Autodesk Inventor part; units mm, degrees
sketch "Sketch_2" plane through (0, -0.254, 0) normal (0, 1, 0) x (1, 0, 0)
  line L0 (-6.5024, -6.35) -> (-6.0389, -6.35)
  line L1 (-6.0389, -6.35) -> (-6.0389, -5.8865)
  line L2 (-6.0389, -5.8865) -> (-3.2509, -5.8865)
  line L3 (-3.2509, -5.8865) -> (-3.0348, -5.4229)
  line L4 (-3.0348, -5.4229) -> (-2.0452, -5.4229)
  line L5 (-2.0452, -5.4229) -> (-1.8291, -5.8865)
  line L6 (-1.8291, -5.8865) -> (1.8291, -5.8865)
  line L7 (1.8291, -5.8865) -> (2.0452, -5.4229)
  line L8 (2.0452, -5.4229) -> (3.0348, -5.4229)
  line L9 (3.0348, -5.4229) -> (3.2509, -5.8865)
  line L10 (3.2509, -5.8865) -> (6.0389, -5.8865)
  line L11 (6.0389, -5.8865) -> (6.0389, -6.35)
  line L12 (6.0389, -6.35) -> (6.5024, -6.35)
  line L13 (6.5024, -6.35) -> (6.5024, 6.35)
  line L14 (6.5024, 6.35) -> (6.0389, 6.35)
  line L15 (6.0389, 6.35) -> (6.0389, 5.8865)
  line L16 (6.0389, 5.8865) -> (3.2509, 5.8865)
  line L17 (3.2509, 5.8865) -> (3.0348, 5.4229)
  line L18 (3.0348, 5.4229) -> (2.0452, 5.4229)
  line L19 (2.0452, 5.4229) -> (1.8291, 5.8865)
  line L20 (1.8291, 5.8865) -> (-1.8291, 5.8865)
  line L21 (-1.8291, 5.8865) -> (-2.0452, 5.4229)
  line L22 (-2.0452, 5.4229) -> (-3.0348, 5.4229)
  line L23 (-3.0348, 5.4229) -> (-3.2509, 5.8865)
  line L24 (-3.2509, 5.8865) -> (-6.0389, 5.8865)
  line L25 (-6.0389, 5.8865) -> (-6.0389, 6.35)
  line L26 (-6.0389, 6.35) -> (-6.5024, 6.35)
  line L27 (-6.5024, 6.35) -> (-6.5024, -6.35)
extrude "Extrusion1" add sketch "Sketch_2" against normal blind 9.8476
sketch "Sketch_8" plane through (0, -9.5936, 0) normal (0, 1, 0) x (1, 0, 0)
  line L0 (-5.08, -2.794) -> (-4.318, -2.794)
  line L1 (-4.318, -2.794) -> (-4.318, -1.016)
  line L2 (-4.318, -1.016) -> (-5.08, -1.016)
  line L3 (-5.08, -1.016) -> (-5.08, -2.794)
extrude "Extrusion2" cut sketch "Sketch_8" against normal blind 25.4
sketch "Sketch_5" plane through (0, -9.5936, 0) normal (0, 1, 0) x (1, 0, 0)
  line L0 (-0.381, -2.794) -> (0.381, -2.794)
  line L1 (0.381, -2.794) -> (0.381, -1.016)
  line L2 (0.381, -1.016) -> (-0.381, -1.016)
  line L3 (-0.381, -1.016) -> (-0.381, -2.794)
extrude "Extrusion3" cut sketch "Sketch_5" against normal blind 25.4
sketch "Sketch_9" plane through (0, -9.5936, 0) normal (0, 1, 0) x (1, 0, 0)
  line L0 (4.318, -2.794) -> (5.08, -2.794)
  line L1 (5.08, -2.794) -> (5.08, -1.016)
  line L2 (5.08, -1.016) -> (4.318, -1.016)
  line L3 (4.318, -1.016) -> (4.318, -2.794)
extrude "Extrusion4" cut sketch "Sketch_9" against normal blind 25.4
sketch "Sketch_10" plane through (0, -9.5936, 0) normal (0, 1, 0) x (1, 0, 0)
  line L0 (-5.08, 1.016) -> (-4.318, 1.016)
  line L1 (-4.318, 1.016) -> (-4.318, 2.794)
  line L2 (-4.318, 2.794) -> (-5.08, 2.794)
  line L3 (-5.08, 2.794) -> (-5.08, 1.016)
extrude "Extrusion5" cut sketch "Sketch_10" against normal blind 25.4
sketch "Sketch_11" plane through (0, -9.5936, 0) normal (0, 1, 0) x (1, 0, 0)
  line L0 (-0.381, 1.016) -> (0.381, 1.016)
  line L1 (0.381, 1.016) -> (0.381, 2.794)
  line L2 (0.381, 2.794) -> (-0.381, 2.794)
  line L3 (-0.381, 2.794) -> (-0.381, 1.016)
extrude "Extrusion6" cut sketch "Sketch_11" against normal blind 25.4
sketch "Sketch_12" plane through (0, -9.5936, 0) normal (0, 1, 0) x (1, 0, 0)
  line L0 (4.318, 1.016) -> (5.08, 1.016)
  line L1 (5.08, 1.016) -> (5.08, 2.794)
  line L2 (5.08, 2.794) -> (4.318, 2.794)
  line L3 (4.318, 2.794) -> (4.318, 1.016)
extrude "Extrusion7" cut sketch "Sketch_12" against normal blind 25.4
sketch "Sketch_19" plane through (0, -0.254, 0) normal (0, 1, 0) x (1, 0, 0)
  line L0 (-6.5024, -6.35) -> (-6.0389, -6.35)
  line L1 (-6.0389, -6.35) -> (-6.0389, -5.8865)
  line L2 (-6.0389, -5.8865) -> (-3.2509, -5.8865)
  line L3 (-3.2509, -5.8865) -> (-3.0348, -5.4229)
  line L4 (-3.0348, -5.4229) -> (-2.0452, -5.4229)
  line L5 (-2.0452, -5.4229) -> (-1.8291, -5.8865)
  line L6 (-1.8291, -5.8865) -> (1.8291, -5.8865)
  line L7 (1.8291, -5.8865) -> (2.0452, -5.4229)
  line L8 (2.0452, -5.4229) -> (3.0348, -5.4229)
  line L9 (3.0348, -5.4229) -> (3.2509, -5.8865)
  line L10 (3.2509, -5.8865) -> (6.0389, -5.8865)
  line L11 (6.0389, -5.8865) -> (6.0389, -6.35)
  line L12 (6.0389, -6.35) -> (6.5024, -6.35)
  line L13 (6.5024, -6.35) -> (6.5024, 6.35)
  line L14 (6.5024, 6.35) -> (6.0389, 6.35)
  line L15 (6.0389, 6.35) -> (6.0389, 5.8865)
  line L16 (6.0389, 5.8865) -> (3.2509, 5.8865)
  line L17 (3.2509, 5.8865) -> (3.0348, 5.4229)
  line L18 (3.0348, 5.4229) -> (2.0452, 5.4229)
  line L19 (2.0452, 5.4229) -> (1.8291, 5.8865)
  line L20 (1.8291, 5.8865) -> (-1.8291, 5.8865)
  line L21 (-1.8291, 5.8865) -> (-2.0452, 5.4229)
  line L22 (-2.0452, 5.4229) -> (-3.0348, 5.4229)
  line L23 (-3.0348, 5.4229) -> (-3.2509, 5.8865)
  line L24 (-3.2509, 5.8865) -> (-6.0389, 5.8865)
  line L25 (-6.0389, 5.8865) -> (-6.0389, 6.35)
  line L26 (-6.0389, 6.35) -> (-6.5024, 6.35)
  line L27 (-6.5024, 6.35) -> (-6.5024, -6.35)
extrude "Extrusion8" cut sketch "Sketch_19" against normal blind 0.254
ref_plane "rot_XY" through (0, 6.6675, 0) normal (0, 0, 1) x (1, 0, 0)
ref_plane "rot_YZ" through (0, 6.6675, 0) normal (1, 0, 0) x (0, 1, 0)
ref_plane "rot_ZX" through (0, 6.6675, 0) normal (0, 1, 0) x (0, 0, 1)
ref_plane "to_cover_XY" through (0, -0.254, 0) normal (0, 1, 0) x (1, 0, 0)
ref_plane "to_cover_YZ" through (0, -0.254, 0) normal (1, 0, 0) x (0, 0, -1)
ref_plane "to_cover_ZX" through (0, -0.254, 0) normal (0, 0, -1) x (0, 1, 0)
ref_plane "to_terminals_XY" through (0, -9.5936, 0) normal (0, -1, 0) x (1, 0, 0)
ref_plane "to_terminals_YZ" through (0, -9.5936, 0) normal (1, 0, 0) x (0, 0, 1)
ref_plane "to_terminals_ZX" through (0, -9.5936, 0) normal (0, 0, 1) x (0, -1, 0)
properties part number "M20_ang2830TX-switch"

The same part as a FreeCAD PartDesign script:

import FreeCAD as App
import Part
import Sketcher

V = App.Vector
Q = App.Units.Quantity


def add_polygon(sketch, points):
    """Adds a closed chain of lines whose ends are joined by coincident constraints."""
    first, n = sketch.GeometryCount, len(points)
    for a, b in zip(points, points[1:] + points[:1]):
        sketch.addGeometry(Part.LineSegment(App.Vector(*a, 0), App.Vector(*b, 0)), False)
    for i in range(n):
        sketch.addConstraint(Sketcher.Constraint("Coincident", first + i, 2, first + (i + 1) % n, 1))

doc = App.newDocument("Part")
body = doc.addObject("PartDesign::Body", "Body")

sketch1 = body.newObject("Sketcher::SketchObject", "Sketch")
sketch1.AttachmentSupport = (doc.getObject("XZ_Plane"), [""])
sketch1.MapMode = "FlatFace"
sketch1.AttachmentOffset = App.Placement(V(0, 0, 0.01 * 25.4), App.Rotation())
add_polygon(sketch1, [(-6.5, -6.35), (-6.5, 6.35), (-6.04, 6.35), (-6.04, 5.89), (-3.25, 5.89), (-3.03, 5.42), (-2.05, 5.42), (-1.83, 5.89), (1.83, 5.89), (2.05, 5.42), (3.03, 5.42), (3.25, 5.89), (6.04, 5.89), (6.04, 6.35), (6.5, 6.35), (6.5, -6.35), (6.04, -6.35), (6.04, -5.89), (3.25, -5.89), (3.03, -5.42), (2.05, -5.42), (1.83, -5.89), (-1.83, -5.89), (-2.05, -5.42), (-3.03, -5.42), (-3.25, -5.89), (-6.04, -5.89), (-6.04, -6.35)])
sketch1.addConstraint(Sketcher.Constraint("Vertical", 0))
sketch1.addConstraint(Sketcher.Constraint("Horizontal", 1))
sketch1.addConstraint(Sketcher.Constraint("Vertical", 2))
sketch1.addConstraint(Sketcher.Constraint("Horizontal", 3))
sketch1.addConstraint(Sketcher.Constraint("Horizontal", 5))
sketch1.addConstraint(Sketcher.Constraint("Horizontal", 7))
sketch1.addConstraint(Sketcher.Constraint("Horizontal", 9))
sketch1.addConstraint(Sketcher.Constraint("Horizontal", 11))
sketch1.addConstraint(Sketcher.Constraint("Vertical", 12))
sketch1.addConstraint(Sketcher.Constraint("Horizontal", 13))
sketch1.addConstraint(Sketcher.Constraint("Vertical", 14))
sketch1.addConstraint(Sketcher.Constraint("Horizontal", 15))
sketch1.addConstraint(Sketcher.Constraint("Vertical", 16))
sketch1.addConstraint(Sketcher.Constraint("Horizontal", 17))
sketch1.addConstraint(Sketcher.Constraint("Horizontal", 19))
sketch1.addConstraint(Sketcher.Constraint("Horizontal", 21))
sketch1.addConstraint(Sketcher.Constraint("Horizontal", 23))
sketch1.addConstraint(Sketcher.Constraint("Horizontal", 25))
sketch1.addConstraint(Sketcher.Constraint("Vertical", 26))
sketch1.addConstraint(Sketcher.Constraint("Horizontal", 27))
sketch1.addConstraint(Sketcher.Constraint("Symmetric", 0, 2, 14, 2, -1, 1))
sketch1.addConstraint(Sketcher.Constraint("Symmetric", 2, 2, 16, 2, -1, 1))
sketch1.addConstraint(Sketcher.Constraint("Symmetric", 4, 2, 18, 2, -1, 1))
sketch1.addConstraint(Sketcher.Constraint("Symmetric", 6, 2, 20, 2, -1, 1))
sketch1.addConstraint(Sketcher.Constraint("Symmetric", 8, 2, 22, 2, -1, 1))
sketch1.addConstraint(Sketcher.Constraint("Symmetric", 10, 2, 24, 2, -1, 1))
sketch1.addConstraint(Sketcher.Constraint("Symmetric", 12, 2, 26, 2, -1, 1))
sketch1.addConstraint(Sketcher.Constraint("Symmetric", 5, 2, 8, 2, -2))
sketch1.addConstraint(Sketcher.Constraint("Symmetric", 3, 2, 10, 2, -2))
sketch1.addConstraint(Sketcher.Constraint("Symmetric", 1, 2, 12, 2, -2))
sketch1.addConstraint(Sketcher.Constraint("Parallel", 4, 8))
sketch1.addConstraint(Sketcher.Constraint("Parallel", 6, 10))
sketch1.addConstraint(Sketcher.Constraint("Parallel", 8, 18))
sketch1.addConstraint(Sketcher.Constraint("Parallel", 10, 20))
sketch1.addConstraint(Sketcher.Constraint("Parallel", 18, 22))
sketch1.addConstraint(Sketcher.Constraint("Parallel", 20, 24))
sketch1.addConstraint(Sketcher.Constraint("Horizontal", 3, 2, 6, 2))
sketch1.addConstraint(Sketcher.Constraint("Vertical", 9, 2, 18, 2))
sketch1.addConstraint(Sketcher.Constraint("Equal", 27, 2))
sketch1.addConstraint(Sketcher.Constraint("DistanceY", 0, 1, 0, 2, Q("0.5 in")))
sketch1.addConstraint(Sketcher.Constraint("DistanceX", 3, 2, 7, 2, Q("0.2 in")))
sketch1.addConstraint(Sketcher.Constraint("DistanceX", 0, 2, -1, 1, Q("0.256 in")))
sketch1.addConstraint(Sketcher.Constraint("DistanceX", 3, 2, -1, 1, Q("0.128 in")))
sketch1.addConstraint(Sketcher.Constraint("DistanceY", 18, 2, 9, 2, Q("0.427 in")))
sketch1.addConstraint(Sketcher.Constraint("DistanceX", 1, 1, 1, 2, Q("0.4635 mm")))
sketch1.addConstraint(Sketcher.Constraint("DistanceX", 5, 1, 5, 2, Q("0.9896 mm")))
pad1 = body.newObject("PartDesign::Pad", "Pad")
pad1.Profile = sketch1
pad1.Length = Q("0.3877008 in")

sketch2 = body.newObject("Sketcher::SketchObject", "Sketch001")
sketch2.AttachmentSupport = (doc.getObject("XZ_Plane"), [""])
sketch2.MapMode = "FlatFace"
sketch2.AttachmentOffset = App.Placement(V(0, 0, 0.3777008 * 25.4), App.Rotation())
add_polygon(sketch2, [(-5.1, 1), (-5.1, 2.8), (-4.3, 2.8), (-4.3, 1)])
sketch2.addConstraint(Sketcher.Constraint("Vertical", 0))
sketch2.addConstraint(Sketcher.Constraint("Horizontal", 1))
sketch2.addConstraint(Sketcher.Constraint("Vertical", 2))
sketch2.addConstraint(Sketcher.Constraint("Horizontal", 3))
sketch2.addConstraint(Sketcher.Constraint("DistanceX", 1, 1, 1, 2, Q("0.03 in")))
sketch2.addConstraint(Sketcher.Constraint("DistanceY", 0, 1, 0, 2, Q("0.07 in")))
sketch2.addConstraint(Sketcher.Constraint("DistanceX", 0, 2, -1, 1, Q("0.2 in")))
sketch2.addConstraint(Sketcher.Constraint("DistanceY", -1, 1, 0, 2, Q("0.11 in")))
pocket1 = body.newObject("PartDesign::Pocket", "Pocket")
pocket1.Profile = sketch2
pocket1.Length = Q("1 in")
pocket1.Reversed = True

sketch3 = body.newObject("Sketcher::SketchObject", "Sketch002")
sketch3.AttachmentSupport = (doc.getObject("XZ_Plane"), [""])
sketch3.MapMode = "FlatFace"
sketch3.AttachmentOffset = App.Placement(V(0, 0, 0.3777008 * 25.4), App.Rotation())
add_polygon(sketch3, [(-0.4, 1), (-0.4, 2.8), (0.4, 2.8), (0.4, 1)])
sketch3.addConstraint(Sketcher.Constraint("Vertical", 0))
sketch3.addConstraint(Sketcher.Constraint("Horizontal", 1))
sketch3.addConstraint(Sketcher.Constraint("Vertical", 2))
sketch3.addConstraint(Sketcher.Constraint("Horizontal", 3))
sketch3.addConstraint(Sketcher.Constraint("DistanceX", 1, 1, 1, 2, Q("0.03 in")))
sketch3.addConstraint(Sketcher.Constraint("DistanceY", 0, 1, 0, 2, Q("0.07 in")))
sketch3.addConstraint(Sketcher.Constraint("DistanceY", -1, 1, 0, 2, Q("0.11 in")))
sketch3.addConstraint(Sketcher.Constraint("DistanceX", 0, 2, -1, 1, Q("0.015 in")))
pocket2 = body.newObject("PartDesign::Pocket", "Pocket001")
pocket2.Profile = sketch3
pocket2.Length = Q("1 in")
pocket2.Reversed = True

sketch4 = body.newObject("Sketcher::SketchObject", "Sketch003")
sketch4.AttachmentSupport = (doc.getObject("XZ_Plane"), [""])
sketch4.MapMode = "FlatFace"
sketch4.AttachmentOffset = App.Placement(V(0, 0, 0.3777008 * 25.4), App.Rotation())
add_polygon(sketch4, [(4.3, 1), (4.3, 2.8), (5.1, 2.8), (5.1, 1)])
sketch4.addConstraint(Sketcher.Constraint("Vertical", 0))
sketch4.addConstraint(Sketcher.Constraint("Horizontal", 1))
sketch4.addConstraint(Sketcher.Constraint("Vertical", 2))
sketch4.addConstraint(Sketcher.Constraint("Horizontal", 3))
sketch4.addConstraint(Sketcher.Constraint("DistanceX", 1, 1, 1, 2, Q("0.03 in")))
sketch4.addConstraint(Sketcher.Constraint("DistanceY", 0, 1, 0, 2, Q("0.07 in")))
sketch4.addConstraint(Sketcher.Constraint("DistanceX", -1, 1, 1, 2, Q("0.2 in")))
sketch4.addConstraint(Sketcher.Constraint("DistanceY", -1, 1, 0, 2, Q("0.11 in")))
pocket3 = body.newObject("PartDesign::Pocket", "Pocket002")
pocket3.Profile = sketch4
pocket3.Length = Q("1 in")
pocket3.Reversed = True

sketch5 = body.newObject("Sketcher::SketchObject", "Sketch004")
sketch5.AttachmentSupport = (doc.getObject("XZ_Plane"), [""])
sketch5.MapMode = "FlatFace"
sketch5.AttachmentOffset = App.Placement(V(0, 0, 0.3777008 * 25.4), App.Rotation())
add_polygon(sketch5, [(-5.1, -2.8), (-5.1, -1), (-4.3, -1), (-4.3, -2.8)])
sketch5.addConstraint(Sketcher.Constraint("Vertical", 0))
sketch5.addConstraint(Sketcher.Constraint("Horizontal", 1))
sketch5.addConstraint(Sketcher.Constraint("Vertical", 2))
sketch5.addConstraint(Sketcher.Constraint("Horizontal", 3))
sketch5.addConstraint(Sketcher.Constraint("DistanceX", 1, 1, 1, 2, Q("0.03 in")))
sketch5.addConstraint(Sketcher.Constraint("DistanceY", 0, 1, 0, 2, Q("0.07 in")))
sketch5.addConstraint(Sketcher.Constraint("DistanceX", 0, 2, -1, 1, Q("0.2 in")))
sketch5.addConstraint(Sketcher.Constraint("DistanceY", 0, 2, -1, 1, Q("0.04 in")))
pocket4 = body.newObject("PartDesign::Pocket", "Pocket003")
pocket4.Profile = sketch5
pocket4.Length = Q("1 in")
pocket4.Reversed = True

sketch6 = body.newObject("Sketcher::SketchObject", "Sketch005")
sketch6.AttachmentSupport = (doc.getObject("XZ_Plane"), [""])
sketch6.MapMode = "FlatFace"
sketch6.AttachmentOffset = App.Placement(V(0, 0, 0.3777008 * 25.4), App.Rotation())
add_polygon(sketch6, [(-0.4, -2.8), (-0.4, -1), (0.4, -1), (0.4, -2.8)])
sketch6.addConstraint(Sketcher.Constraint("Vertical", 0))
sketch6.addConstraint(Sketcher.Constraint("Horizontal", 1))
sketch6.addConstraint(Sketcher.Constraint("Vertical", 2))
sketch6.addConstraint(Sketcher.Constraint("Horizontal", 3))
sketch6.addConstraint(Sketcher.Constraint("DistanceX", 1, 1, 1, 2, Q("0.03 in")))
sketch6.addConstraint(Sketcher.Constraint("DistanceY", 0, 1, 0, 2, Q("0.07 in")))
sketch6.addConstraint(Sketcher.Constraint("DistanceY", 0, 2, -1, 1, Q("0.04 in")))
sketch6.addConstraint(Sketcher.Constraint("DistanceX", 0, 2, -1, 1, Q("0.015 in")))
pocket5 = body.newObject("PartDesign::Pocket", "Pocket004")
pocket5.Profile = sketch6
pocket5.Length = Q("1 in")
pocket5.Reversed = True

sketch7 = body.newObject("Sketcher::SketchObject", "Sketch006")
sketch7.AttachmentSupport = (doc.getObject("XZ_Plane"), [""])
sketch7.MapMode = "FlatFace"
sketch7.AttachmentOffset = App.Placement(V(0, 0, 0.3777008 * 25.4), App.Rotation())
add_polygon(sketch7, [(4.3, -2.8), (4.3, -1), (5.1, -1), (5.1, -2.8)])
sketch7.addConstraint(Sketcher.Constraint("Vertical", 0))
sketch7.addConstraint(Sketcher.Constraint("Horizontal", 1))
sketch7.addConstraint(Sketcher.Constraint("Vertical", 2))
sketch7.addConstraint(Sketcher.Constraint("Horizontal", 3))
sketch7.addConstraint(Sketcher.Constraint("DistanceX", 1, 1, 1, 2, Q("0.03 in")))
sketch7.addConstraint(Sketcher.Constraint("DistanceY", 0, 1, 0, 2, Q("0.07 in")))
sketch7.addConstraint(Sketcher.Constraint("DistanceX", -1, 1, 1, 2, Q("0.2 in")))
sketch7.addConstraint(Sketcher.Constraint("DistanceY", 0, 2, -1, 1, Q("0.04 in")))
pocket6 = body.newObject("PartDesign::Pocket", "Pocket005")
pocket6.Profile = sketch7
pocket6.Length = Q("1 in")
pocket6.Reversed = True

sketch8 = body.newObject("Sketcher::SketchObject", "Sketch007")
sketch8.AttachmentSupport = (doc.getObject("XZ_Plane"), [""])
sketch8.MapMode = "FlatFace"
sketch8.AttachmentOffset = App.Placement(V(0, 0, 0.01 * 25.4), App.Rotation())
add_polygon(sketch8, [(-6.5, -6.35), (-6.5, 6.35), (-6.04, 6.35), (-6.04, 5.89), (-3.25, 5.89), (-3.03, 5.42), (-2.05, 5.42), (-1.83, 5.89), (1.83, 5.89), (2.05, 5.42), (3.03, 5.42), (3.25, 5.89), (6.04, 5.89), (6.04, 6.35), (6.5, 6.35), (6.5, -6.35), (6.04, -6.35), (6.04, -5.89), (3.25, -5.89), (3.03, -5.42), (2.05, -5.42), (1.83, -5.89), (-1.83, -5.89), (-2.05, -5.42), (-3.03, -5.42), (-3.25, -5.89), (-6.04, -5.89), (-6.04, -6.35)])
sketch8.addConstraint(Sketcher.Constraint("Vertical", 0))
sketch8.addConstraint(Sketcher.Constraint("Horizontal", 1))
sketch8.addConstraint(Sketcher.Constraint("Vertical", 2))
sketch8.addConstraint(Sketcher.Constraint("Horizontal", 3))
sketch8.addConstraint(Sketcher.Constraint("Horizontal", 5))
sketch8.addConstraint(Sketcher.Constraint("Horizontal", 7))
sketch8.addConstraint(Sketcher.Constraint("Horizontal", 9))
sketch8.addConstraint(Sketcher.Constraint("Horizontal", 11))
sketch8.addConstraint(Sketcher.Constraint("Vertical", 12))
sketch8.addConstraint(Sketcher.Constraint("Horizontal", 13))
sketch8.addConstraint(Sketcher.Constraint("Vertical", 14))
sketch8.addConstraint(Sketcher.Constraint("Horizontal", 15))
sketch8.addConstraint(Sketcher.Constraint("Vertical", 16))
sketch8.addConstraint(Sketcher.Constraint("Horizontal", 17))
sketch8.addConstraint(Sketcher.Constraint("Horizontal", 19))
sketch8.addConstraint(Sketcher.Constraint("Horizontal", 21))
sketch8.addConstraint(Sketcher.Constraint("Horizontal", 23))
sketch8.addConstraint(Sketcher.Constraint("Horizontal", 25))
sketch8.addConstraint(Sketcher.Constraint("Vertical", 26))
sketch8.addConstraint(Sketcher.Constraint("Horizontal", 27))
sketch8.addConstraint(Sketcher.Constraint("Symmetric", 0, 2, 14, 2, -1, 1))
sketch8.addConstraint(Sketcher.Constraint("Symmetric", 2, 2, 16, 2, -1, 1))
sketch8.addConstraint(Sketcher.Constraint("Symmetric", 4, 2, 18, 2, -1, 1))
sketch8.addConstraint(Sketcher.Constraint("Symmetric", 6, 2, 20, 2, -1, 1))
sketch8.addConstraint(Sketcher.Constraint("Symmetric", 8, 2, 22, 2, -1, 1))
sketch8.addConstraint(Sketcher.Constraint("Symmetric", 10, 2, 24, 2, -1, 1))
sketch8.addConstraint(Sketcher.Constraint("Symmetric", 12, 2, 26, 2, -1, 1))
sketch8.addConstraint(Sketcher.Constraint("Symmetric", 5, 2, 8, 2, -2))
sketch8.addConstraint(Sketcher.Constraint("Symmetric", 3, 2, 10, 2, -2))
sketch8.addConstraint(Sketcher.Constraint("Symmetric", 1, 2, 12, 2, -2))
sketch8.addConstraint(Sketcher.Constraint("Parallel", 4, 8))
sketch8.addConstraint(Sketcher.Constraint("Parallel", 6, 10))
sketch8.addConstraint(Sketcher.Constraint("Parallel", 8, 18))
sketch8.addConstraint(Sketcher.Constraint("Parallel", 10, 20))
sketch8.addConstraint(Sketcher.Constraint("Parallel", 18, 22))
sketch8.addConstraint(Sketcher.Constraint("Parallel", 20, 24))
sketch8.addConstraint(Sketcher.Constraint("Horizontal", 3, 2, 6, 2))
sketch8.addConstraint(Sketcher.Constraint("Vertical", 9, 2, 18, 2))
sketch8.addConstraint(Sketcher.Constraint("Equal", 27, 2))
sketch8.addConstraint(Sketcher.Constraint("DistanceY", 0, 1, 0, 2, Q("0.5 in")))
sketch8.addConstraint(Sketcher.Constraint("DistanceX", 3, 2, 7, 2, Q("0.2 in")))
sketch8.addConstraint(Sketcher.Constraint("DistanceX", 0, 2, -1, 1, Q("0.256 in")))
sketch8.addConstraint(Sketcher.Constraint("DistanceX", 3, 2, -1, 1, Q("0.128 in")))
sketch8.addConstraint(Sketcher.Constraint("DistanceY", 18, 2, 9, 2, Q("0.427 in")))
sketch8.addConstraint(Sketcher.Constraint("DistanceX", 1, 1, 1, 2, Q("0.4635 mm")))
sketch8.addConstraint(Sketcher.Constraint("DistanceX", 5, 1, 5, 2, Q("0.9896 mm")))
pocket7 = body.newObject("PartDesign::Pocket", "Pocket006")
pocket7.Profile = sketch8
pocket7.Length = Q("0.01 in")
pocket7.Reversed = True

doc.recompute()
